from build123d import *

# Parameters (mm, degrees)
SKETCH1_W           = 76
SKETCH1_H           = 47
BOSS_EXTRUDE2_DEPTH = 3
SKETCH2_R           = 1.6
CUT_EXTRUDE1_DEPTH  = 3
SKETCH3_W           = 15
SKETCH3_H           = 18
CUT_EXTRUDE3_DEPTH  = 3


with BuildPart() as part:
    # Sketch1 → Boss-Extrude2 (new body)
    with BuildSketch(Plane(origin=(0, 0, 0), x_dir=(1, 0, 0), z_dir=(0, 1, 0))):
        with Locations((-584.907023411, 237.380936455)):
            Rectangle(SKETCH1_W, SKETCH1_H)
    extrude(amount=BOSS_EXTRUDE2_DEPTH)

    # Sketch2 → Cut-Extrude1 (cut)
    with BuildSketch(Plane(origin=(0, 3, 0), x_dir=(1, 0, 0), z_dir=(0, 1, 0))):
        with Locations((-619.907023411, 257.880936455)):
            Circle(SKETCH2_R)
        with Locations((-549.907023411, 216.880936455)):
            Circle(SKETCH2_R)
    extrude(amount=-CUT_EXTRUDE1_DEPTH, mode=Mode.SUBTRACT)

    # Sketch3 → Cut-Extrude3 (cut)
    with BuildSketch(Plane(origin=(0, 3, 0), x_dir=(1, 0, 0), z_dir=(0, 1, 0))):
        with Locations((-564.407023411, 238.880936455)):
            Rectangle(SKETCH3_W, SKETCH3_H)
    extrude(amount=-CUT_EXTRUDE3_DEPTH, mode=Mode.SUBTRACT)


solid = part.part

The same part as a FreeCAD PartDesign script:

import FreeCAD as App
import Part
import Sketcher
from FreeCAD import Vector


def add_polygon(sketch, points):
    """Adds a closed chain of lines whose ends are joined by coincident constraints."""
    first, n = sketch.GeometryCount, len(points)
    for a, b in zip(points, points[1:] + points[:1]):
        sketch.addGeometry(Part.LineSegment(App.Vector(*a, 0), App.Vector(*b, 0)), False)
    for i in range(n):
        sketch.addConstraint(Sketcher.Constraint("Coincident", first + i, 2, first + (i + 1) % n, 1))

doc = App.newDocument("Part")
params = doc.addObject("Spreadsheet::Sheet", "Params")
for row, (alias, value) in enumerate([
    ("sketch1_width", "76 mm"),
    ("sketch1_height", "47 mm"),
    ("pad1_length", "3 mm"),
    ("sketch2_diameter", "3.2 mm"),
    ("pocket1_length", "3 mm"),
    ("sketch3_width", "15 mm"),
    ("sketch3_height", "18 mm"),
    ("pocket2_length", "3 mm"),
], start=1):
    params.set(f"A{row}", alias)
    params.set(f"B{row}", "=" + value)
    params.setAlias(f"B{row}", alias)

body = doc.addObject("PartDesign::Body", "Body")

# Sketch on XZ plane
sketch1 = doc.addObject("Sketcher::SketchObject", "Sketch")
body.addObject(sketch1)
sketch1.AttachmentSupport = (doc.XZ_Plane, [""])
sketch1.MapMode = "FlatFace"
add_polygon(sketch1, [(-623, -261), (-623, -214), (-547, -214), (-547, -261)])  # lines 0-3
sketch1.addConstraint(Sketcher.Constraint("Vertical", 0))
sketch1.addConstraint(Sketcher.Constraint("Horizontal", 1))
sketch1.addConstraint(Sketcher.Constraint("Vertical", 2))
sketch1.addConstraint(Sketcher.Constraint("Horizontal", 3))
sketch1.addConstraint(Sketcher.Constraint("DistanceX", 1, 1, 1, 2, 76.0))
sketch1.addConstraint(Sketcher.Constraint("DistanceY", 0, 1, 0, 2, 47.0))
sketch1.addConstraint(Sketcher.Constraint("DistanceX", 0, 2, -1, 1, 622.907023))
sketch1.addConstraint(Sketcher.Constraint("DistanceY", 0, 2, -1, 1, 213.880936))
sketch1.setExpression("Constraints[8]", "Params.sketch1_width")
sketch1.setExpression("Constraints[9]", "Params.sketch1_height")
pad1 = doc.addObject("PartDesign::Pad", "Pad")
body.addObject(pad1)
pad1.Profile = sketch1
pad1.setExpression("Length", "Params.pad1_length")
pad1.Reversed = True

# Sketch on XZ plane
sketch2 = doc.addObject("Sketcher::SketchObject", "Sketch001")
body.addObject(sketch2)
sketch2.AttachmentSupport = (doc.XZ_Plane, [""])
sketch2.MapMode = "FlatFace"
sketch2.AttachmentOffset = App.Placement(Vector(0, 0, -3), App.Rotation())
sketch2.addGeometry(Part.Circle(Vector(-619.9, -257.9, 0), Vector(0, 0, 1), 1.6), False)
sketch2.addGeometry(Part.Circle(Vector(-549.9, -216.9, 0), Vector(0, 0, 1), 1.6), False)
sketch2.addConstraint(Sketcher.Constraint("Equal", 0, 1))
sketch2.addConstraint(Sketcher.Constraint("Diameter", 0, 3.2))
sketch2.addConstraint(Sketcher.Constraint("DistanceX", 0, 3, 1, 3, 70.0))
sketch2.addConstraint(Sketcher.Constraint("DistanceY", 0, 3, 1, 3, 41.0))
sketch2.addConstraint(Sketcher.Constraint("DistanceX", 0, 3, -1, 1, 619.907023))
sketch2.addConstraint(Sketcher.Constraint("DistanceY", 0, 3, -1, 1, 257.880936))
sketch2.setExpression("Constraints[1]", "Params.sketch2_diameter")
pocket1 = doc.addObject("PartDesign::Pocket", "Pocket")
body.addObject(pocket1)
pocket1.Profile = sketch2
pocket1.setExpression("Length", "Params.pocket1_length")
pocket1.Reversed = True

# Sketch on XZ plane
sketch3 = doc.addObject("Sketcher::SketchObject", "Sketch002")
body.addObject(sketch3)
sketch3.AttachmentSupport = (doc.XZ_Plane, [""])
sketch3.MapMode = "FlatFace"
sketch3.AttachmentOffset = App.Placement(Vector(0, 0, -3), App.Rotation())
add_polygon(sketch3, [(-572, -248), (-572, -230), (-557, -230), (-557, -248)])  # lines 0-3
sketch3.addConstraint(Sketcher.Constraint("Vertical", 0))
sketch3.addConstraint(Sketcher.Constraint("Horizontal", 1))
sketch3.addConstraint(Sketcher.Constraint("Vertical", 2))
sketch3.addConstraint(Sketcher.Constraint("Horizontal", 3))
sketch3.addConstraint(Sketcher.Constraint("DistanceX", 1, 1, 1, 2, 15.0))
sketch3.addConstraint(Sketcher.Constraint("DistanceY", 0, 1, 0, 2, 18.0))
sketch3.addConstraint(Sketcher.Constraint("DistanceX", 0, 2, -1, 1, 571.907023))
sketch3.addConstraint(Sketcher.Constraint("DistanceY", 0, 2, -1, 1, 229.880936))
sketch3.setExpression("Constraints[8]", "Params.sketch3_width")
sketch3.setExpression("Constraints[9]", "Params.sketch3_height")
pocket2 = doc.addObject("PartDesign::Pocket", "Pocket001")
body.addObject(pocket2)
pocket2.Profile = sketch3
pocket2.setExpression("Length", "Params.pocket2_length")
pocket2.Reversed = True

doc.recompute()
